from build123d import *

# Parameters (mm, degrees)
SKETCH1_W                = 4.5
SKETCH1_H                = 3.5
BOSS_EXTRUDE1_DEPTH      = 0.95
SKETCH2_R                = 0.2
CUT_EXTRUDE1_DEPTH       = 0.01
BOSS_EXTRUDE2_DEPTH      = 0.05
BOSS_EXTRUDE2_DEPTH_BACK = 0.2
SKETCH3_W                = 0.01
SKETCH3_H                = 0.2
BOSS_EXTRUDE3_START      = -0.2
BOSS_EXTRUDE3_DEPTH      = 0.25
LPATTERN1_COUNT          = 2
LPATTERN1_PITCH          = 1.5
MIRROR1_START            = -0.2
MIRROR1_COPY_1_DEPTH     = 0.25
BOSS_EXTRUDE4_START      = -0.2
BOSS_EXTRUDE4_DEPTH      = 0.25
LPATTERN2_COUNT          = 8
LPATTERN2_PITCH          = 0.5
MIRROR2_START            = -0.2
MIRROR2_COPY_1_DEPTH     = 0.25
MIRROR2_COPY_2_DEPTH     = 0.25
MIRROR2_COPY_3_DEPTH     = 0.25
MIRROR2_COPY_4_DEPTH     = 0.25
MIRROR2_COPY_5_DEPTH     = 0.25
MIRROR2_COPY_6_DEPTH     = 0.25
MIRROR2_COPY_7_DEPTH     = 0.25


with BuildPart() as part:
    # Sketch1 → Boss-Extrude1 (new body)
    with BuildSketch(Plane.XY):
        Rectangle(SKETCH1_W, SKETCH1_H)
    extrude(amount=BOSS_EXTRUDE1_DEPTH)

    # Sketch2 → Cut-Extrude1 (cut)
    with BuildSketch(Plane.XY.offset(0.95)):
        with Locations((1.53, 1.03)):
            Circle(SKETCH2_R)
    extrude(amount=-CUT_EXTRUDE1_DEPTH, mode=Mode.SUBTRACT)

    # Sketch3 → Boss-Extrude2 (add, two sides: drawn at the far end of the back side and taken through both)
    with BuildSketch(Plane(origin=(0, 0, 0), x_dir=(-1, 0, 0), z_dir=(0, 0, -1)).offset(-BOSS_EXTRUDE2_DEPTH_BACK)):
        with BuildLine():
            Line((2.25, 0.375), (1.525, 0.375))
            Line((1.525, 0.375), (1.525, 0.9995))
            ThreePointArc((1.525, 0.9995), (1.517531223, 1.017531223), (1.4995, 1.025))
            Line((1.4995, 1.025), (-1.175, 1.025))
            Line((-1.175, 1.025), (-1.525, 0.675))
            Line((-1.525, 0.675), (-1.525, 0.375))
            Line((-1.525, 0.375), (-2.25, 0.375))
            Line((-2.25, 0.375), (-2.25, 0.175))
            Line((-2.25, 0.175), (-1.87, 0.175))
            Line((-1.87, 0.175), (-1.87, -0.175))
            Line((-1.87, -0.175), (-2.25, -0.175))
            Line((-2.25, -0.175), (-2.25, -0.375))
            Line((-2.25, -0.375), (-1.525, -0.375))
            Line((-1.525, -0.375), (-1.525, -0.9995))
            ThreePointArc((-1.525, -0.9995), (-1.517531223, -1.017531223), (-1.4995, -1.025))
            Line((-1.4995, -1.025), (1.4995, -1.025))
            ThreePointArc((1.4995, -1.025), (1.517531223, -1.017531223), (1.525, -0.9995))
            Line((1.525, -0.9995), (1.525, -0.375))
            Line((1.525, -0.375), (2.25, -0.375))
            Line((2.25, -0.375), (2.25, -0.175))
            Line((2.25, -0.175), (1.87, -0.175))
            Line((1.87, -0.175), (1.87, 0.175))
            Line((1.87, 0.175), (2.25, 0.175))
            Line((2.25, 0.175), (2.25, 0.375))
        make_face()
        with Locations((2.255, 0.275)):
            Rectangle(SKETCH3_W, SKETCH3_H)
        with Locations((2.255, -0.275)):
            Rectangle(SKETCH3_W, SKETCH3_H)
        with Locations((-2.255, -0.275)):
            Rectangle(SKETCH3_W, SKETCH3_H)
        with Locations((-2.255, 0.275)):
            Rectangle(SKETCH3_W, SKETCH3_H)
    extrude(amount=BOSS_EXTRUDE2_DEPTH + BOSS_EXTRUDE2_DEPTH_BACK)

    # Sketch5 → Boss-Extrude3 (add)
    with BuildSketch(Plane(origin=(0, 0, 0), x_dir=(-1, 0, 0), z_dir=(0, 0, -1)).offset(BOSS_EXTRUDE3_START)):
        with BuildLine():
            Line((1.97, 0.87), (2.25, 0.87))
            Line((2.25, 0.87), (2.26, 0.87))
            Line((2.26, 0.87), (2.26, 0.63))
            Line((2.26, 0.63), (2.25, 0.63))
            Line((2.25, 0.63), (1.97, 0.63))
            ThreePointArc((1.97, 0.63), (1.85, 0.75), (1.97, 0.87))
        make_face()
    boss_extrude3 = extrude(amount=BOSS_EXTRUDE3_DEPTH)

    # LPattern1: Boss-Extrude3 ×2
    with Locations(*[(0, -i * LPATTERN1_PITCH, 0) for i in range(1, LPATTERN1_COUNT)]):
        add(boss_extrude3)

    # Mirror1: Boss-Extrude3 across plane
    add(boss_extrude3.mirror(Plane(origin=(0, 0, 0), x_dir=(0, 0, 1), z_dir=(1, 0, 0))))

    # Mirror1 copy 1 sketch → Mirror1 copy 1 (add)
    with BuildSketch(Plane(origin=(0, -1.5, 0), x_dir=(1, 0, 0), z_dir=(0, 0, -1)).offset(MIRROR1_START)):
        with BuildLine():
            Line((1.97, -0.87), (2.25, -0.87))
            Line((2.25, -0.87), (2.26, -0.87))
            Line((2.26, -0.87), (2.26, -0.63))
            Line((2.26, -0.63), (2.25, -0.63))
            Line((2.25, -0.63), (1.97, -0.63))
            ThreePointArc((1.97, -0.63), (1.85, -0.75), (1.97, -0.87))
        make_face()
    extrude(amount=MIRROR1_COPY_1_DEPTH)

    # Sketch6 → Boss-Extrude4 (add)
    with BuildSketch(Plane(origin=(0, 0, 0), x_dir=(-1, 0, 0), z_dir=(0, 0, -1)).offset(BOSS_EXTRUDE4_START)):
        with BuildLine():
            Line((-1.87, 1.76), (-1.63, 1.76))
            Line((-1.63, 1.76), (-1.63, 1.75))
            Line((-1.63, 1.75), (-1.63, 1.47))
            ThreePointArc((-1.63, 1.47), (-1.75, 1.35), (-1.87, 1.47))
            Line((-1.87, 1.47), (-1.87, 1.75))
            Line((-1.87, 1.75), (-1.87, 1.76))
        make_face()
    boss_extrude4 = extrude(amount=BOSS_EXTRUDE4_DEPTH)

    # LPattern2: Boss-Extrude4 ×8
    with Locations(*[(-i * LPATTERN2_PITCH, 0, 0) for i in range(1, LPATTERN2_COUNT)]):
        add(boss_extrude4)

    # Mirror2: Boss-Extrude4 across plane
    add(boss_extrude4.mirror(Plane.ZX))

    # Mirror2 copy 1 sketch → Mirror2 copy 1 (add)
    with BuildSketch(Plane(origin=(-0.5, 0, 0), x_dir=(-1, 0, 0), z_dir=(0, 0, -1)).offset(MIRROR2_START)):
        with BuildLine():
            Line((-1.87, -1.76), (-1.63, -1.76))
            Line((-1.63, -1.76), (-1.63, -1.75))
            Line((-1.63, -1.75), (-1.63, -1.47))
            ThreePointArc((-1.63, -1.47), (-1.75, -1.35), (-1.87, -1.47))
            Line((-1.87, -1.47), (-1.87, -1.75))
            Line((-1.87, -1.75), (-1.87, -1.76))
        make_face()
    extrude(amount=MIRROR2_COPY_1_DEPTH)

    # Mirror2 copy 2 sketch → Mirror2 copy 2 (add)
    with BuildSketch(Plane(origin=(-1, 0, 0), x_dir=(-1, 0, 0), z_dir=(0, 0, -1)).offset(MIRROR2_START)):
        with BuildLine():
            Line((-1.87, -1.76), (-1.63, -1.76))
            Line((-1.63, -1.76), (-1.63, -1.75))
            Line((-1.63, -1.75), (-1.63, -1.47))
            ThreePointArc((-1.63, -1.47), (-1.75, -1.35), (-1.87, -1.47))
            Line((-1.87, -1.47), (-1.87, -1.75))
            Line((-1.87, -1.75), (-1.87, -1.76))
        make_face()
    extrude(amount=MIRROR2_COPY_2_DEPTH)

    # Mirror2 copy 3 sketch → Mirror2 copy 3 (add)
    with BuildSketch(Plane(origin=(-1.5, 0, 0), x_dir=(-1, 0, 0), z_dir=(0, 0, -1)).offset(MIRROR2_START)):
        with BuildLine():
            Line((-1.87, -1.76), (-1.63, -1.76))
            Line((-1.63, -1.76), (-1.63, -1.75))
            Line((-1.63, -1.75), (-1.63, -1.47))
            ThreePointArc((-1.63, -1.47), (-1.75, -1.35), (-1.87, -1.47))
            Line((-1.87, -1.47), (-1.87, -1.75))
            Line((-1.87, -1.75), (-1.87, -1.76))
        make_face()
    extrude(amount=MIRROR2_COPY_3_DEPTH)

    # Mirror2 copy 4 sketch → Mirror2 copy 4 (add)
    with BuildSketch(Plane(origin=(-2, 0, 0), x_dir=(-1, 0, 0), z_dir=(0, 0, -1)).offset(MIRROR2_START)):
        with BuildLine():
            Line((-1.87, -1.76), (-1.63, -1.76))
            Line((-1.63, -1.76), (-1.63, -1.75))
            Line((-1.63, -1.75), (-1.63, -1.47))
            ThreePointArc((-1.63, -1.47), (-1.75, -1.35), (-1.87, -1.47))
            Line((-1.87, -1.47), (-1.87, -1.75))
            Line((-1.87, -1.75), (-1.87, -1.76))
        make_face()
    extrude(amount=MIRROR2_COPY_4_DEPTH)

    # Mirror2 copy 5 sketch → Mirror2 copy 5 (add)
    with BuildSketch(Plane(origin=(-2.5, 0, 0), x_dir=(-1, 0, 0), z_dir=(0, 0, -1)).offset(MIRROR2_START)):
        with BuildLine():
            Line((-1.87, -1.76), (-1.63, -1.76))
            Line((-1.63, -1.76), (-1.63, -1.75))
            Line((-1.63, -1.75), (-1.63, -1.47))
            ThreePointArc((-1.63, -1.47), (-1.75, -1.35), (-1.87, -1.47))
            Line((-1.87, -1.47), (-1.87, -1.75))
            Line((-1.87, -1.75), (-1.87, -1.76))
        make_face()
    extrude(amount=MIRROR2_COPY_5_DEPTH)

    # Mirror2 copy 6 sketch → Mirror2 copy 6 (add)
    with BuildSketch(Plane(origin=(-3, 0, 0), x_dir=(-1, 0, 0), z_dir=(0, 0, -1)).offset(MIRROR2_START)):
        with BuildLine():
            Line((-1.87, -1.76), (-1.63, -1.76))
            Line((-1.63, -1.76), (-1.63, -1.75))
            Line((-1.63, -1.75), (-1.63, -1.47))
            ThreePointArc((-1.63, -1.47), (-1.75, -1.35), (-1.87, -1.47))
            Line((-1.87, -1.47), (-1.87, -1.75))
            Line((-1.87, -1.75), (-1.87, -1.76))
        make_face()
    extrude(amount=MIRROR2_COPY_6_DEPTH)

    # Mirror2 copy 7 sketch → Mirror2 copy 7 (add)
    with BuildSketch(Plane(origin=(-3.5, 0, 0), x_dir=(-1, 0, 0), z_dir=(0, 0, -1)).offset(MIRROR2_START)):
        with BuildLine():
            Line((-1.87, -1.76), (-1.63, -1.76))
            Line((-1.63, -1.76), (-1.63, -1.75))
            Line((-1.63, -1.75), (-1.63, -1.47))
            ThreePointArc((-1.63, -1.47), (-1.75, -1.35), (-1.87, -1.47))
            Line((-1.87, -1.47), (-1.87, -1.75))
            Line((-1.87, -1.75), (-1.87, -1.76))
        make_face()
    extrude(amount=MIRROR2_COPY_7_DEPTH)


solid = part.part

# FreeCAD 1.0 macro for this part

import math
import FreeCAD as App
import Part
import Sketcher

V = App.Vector
Q = App.Units.Quantity

doc = App.newDocument("Part")
body = doc.addObject("PartDesign::Body", "Body")

sketch1 = body.newObject("Sketcher::SketchObject", "Sketch")
sketch1.AttachmentSupport = (doc.getObject("XY_Plane"), [""])
sketch1.MapMode = "FlatFace"
sketch1.addGeometry(Part.LineSegment(V(-2.25, 1.75, 0), V(-2.25, -1.75, 0)), False)
sketch1.addGeometry(Part.LineSegment(V(-2.25, -1.75, 0), V(2.25, -1.75, 0)), False)
sketch1.addGeometry(Part.LineSegment(V(2.25, -1.75, 0), V(2.25, 1.75, 0)), False)
sketch1.addGeometry(Part.LineSegment(V(2.25, 1.75, 0), V(-2.25, 1.75, 0)), False)
sketch1.addConstraint(Sketcher.Constraint("Coincident", 0, 2, 1, 1))
sketch1.addConstraint(Sketcher.Constraint("Coincident", 1, 2, 2, 1))
sketch1.addConstraint(Sketcher.Constraint("Coincident", 2, 2, 3, 1))
sketch1.addConstraint(Sketcher.Constraint("Coincident", 3, 2, 0, 1))
sketch1.addConstraint(Sketcher.Constraint("Vertical", 0))
sketch1.addConstraint(Sketcher.Constraint("Horizontal", 1))
sketch1.addConstraint(Sketcher.Constraint("Vertical", 2))
sketch1.addConstraint(Sketcher.Constraint("Horizontal", 3))
sketch1.addConstraint(Sketcher.Constraint("Symmetric", 0, 2, 2, 2, -1, 1))
sketch1.addConstraint(Sketcher.Constraint("DistanceX", 1, 1, 1, 2, Q("4.5 mm")))
sketch1.addConstraint(Sketcher.Constraint("DistanceY", 0, 2, 0, 1, Q("3.5 mm")))
pad1 = body.newObject("PartDesign::Pad", "Pad")
pad1.Profile = sketch1
pad1.Length = 0.95

sketch2 = body.newObject("Sketcher::SketchObject", "Sketch001")
sketch2.AttachmentSupport = (doc.getObject("XY_Plane"), [""])
sketch2.MapMode = "FlatFace"
sketch2.AttachmentOffset = App.Placement(V(0, 0, 0.95), App.Rotation())
sketch2.addGeometry(Part.Circle(V(1.53, 1.03, 0), V(0, 0, 1), 0.2), False)
sketch2.addConstraint(Sketcher.Constraint("Diameter", 0, Q("0.4 mm")))
sketch2.addConstraint(Sketcher.Constraint("DistanceX", -1, 1, 0, 3, Q("1.53 mm")))
sketch2.addConstraint(Sketcher.Constraint("DistanceY", -1, 1, 0, 3, Q("1.03 mm")))
pocket1 = body.newObject("PartDesign::Pocket", "Pocket")
pocket1.Profile = sketch2
pocket1.Length = 0.01

sketch3 = body.newObject("Sketcher::SketchObject", "Sketch002")
sketch3.AttachmentSupport = (doc.getObject("XY_Plane"), [""])
sketch3.MapMode = "FlatFace"
sketch3.addGeometry(Part.LineSegment(V(-1.525, 0.375, 0), V(-1.525, 0.9995, 0)), False)
sketch3.addGeometry(Part.ArcOfCircle(Part.Circle(V(-1.4995, 0.9995, 0), V(0, 0, 1), 0.0255), math.radians(90), math.radians(180)), False)
sketch3.addGeometry(Part.LineSegment(V(-1.4995, 1.025, 0), V(1.175, 1.025, 0)), False)
sketch3.addGeometry(Part.LineSegment(V(1.175, 1.025, 0), V(1.525, 0.675, 0)), False)
sketch3.addGeometry(Part.LineSegment(V(1.525, 0.675, 0), V(1.525, 0.375, 0)), False)
sketch3.addGeometry(Part.LineSegment(V(1.525, 0.375, 0), V(2.26, 0.375, 0)), False)
sketch3.addGeometry(Part.LineSegment(V(2.26, 0.375, 0), V(2.26, 0.175, 0)), False)
sketch3.addGeometry(Part.LineSegment(V(2.26, 0.175, 0), V(1.87, 0.175, 0)), False)
sketch3.addGeometry(Part.LineSegment(V(1.87, 0.175, 0), V(1.87, -0.175, 0)), False)
sketch3.addGeometry(Part.LineSegment(V(1.87, -0.175, 0), V(2.26, -0.175, 0)), False)
sketch3.addGeometry(Part.LineSegment(V(2.26, -0.175, 0), V(2.26, -0.375, 0)), False)
sketch3.addGeometry(Part.LineSegment(V(2.26, -0.375, 0), V(1.525, -0.375, 0)), False)
sketch3.addGeometry(Part.LineSegment(V(1.525, -0.375, 0), V(1.525, -0.9995, 0)), False)
sketch3.addGeometry(Part.ArcOfCircle(Part.Circle(V(1.4995, -0.9995, 0), V(0, 0, 1), 0.0255), math.radians(-90), math.radians(0)), False)
sketch3.addGeometry(Part.LineSegment(V(1.4995, -1.025, 0), V(-1.4995, -1.025, 0)), False)
sketch3.addGeometry(Part.ArcOfCircle(Part.Circle(V(-1.4995, -0.9995, 0), V(0, 0, 1), 0.0255), math.radians(180), math.radians(270)), False)
sketch3.addGeometry(Part.LineSegment(V(-1.525, -0.9995, 0), V(-1.525, -0.375, 0)), False)
sketch3.addGeometry(Part.LineSegment(V(-1.525, -0.375, 0), V(-2.26, -0.375, 0)), False)
sketch3.addGeometry(Part.LineSegment(V(-2.26, -0.375, 0), V(-2.26, -0.175, 0)), False)
sketch3.addGeometry(Part.LineSegment(V(-2.26, -0.175, 0), V(-1.87, -0.175, 0)), False)
sketch3.addGeometry(Part.LineSegment(V(-1.87, -0.175, 0), V(-1.87, 0.175, 0)), False)
sketch3.addGeometry(Part.LineSegment(V(-1.87, 0.175, 0), V(-2.26, 0.175, 0)), False)
sketch3.addGeometry(Part.LineSegment(V(-2.26, 0.175, 0), V(-2.26, 0.375, 0)), False)
sketch3.addGeometry(Part.LineSegment(V(-2.26, 0.375, 0), V(-1.525, 0.375, 0)), False)
sketch3.addConstraint(Sketcher.Constraint("Tangent", 0, 2, 1, 2))
sketch3.addConstraint(Sketcher.Constraint("Tangent", 1, 1, 2, 1))
sketch3.addConstraint(Sketcher.Constraint("Coincident", 2, 2, 3, 1))
sketch3.addConstraint(Sketcher.Constraint("Coincident", 3, 2, 4, 1))
sketch3.addConstraint(Sketcher.Constraint("Coincident", 4, 2, 5, 1))
sketch3.addConstraint(Sketcher.Constraint("Coincident", 5, 2, 6, 1))
sketch3.addConstraint(Sketcher.Constraint("Coincident", 6, 2, 7, 1))
sketch3.addConstraint(Sketcher.Constraint("Coincident", 7, 2, 8, 1))
sketch3.addConstraint(Sketcher.Constraint("Coincident", 8, 2, 9, 1))
sketch3.addConstraint(Sketcher.Constraint("Coincident", 9, 2, 10, 1))
sketch3.addConstraint(Sketcher.Constraint("Coincident", 10, 2, 11, 1))
sketch3.addConstraint(Sketcher.Constraint("Coincident", 11, 2, 12, 1))
sketch3.addConstraint(Sketcher.Constraint("Tangent", 12, 2, 13, 2))
sketch3.addConstraint(Sketcher.Constraint("Tangent", 13, 1, 14, 1))
sketch3.addConstraint(Sketcher.Constraint("Tangent", 14, 2, 15, 2))
sketch3.addConstraint(Sketcher.Constraint("Tangent", 15, 1, 16, 1))
sketch3.addConstraint(Sketcher.Constraint("Coincident", 16, 2, 17, 1))
sketch3.addConstraint(Sketcher.Constraint("Coincident", 17, 2, 18, 1))
sketch3.addConstraint(Sketcher.Constraint("Coincident", 18, 2, 19, 1))
sketch3.addConstraint(Sketcher.Constraint("Coincident", 19, 2, 20, 1))
sketch3.addConstraint(Sketcher.Constraint("Coincident", 20, 2, 21, 1))
sketch3.addConstraint(Sketcher.Constraint("Coincident", 21, 2, 22, 1))
sketch3.addConstraint(Sketcher.Constraint("Coincident", 22, 2, 23, 1))
sketch3.addConstraint(Sketcher.Constraint("Coincident", 23, 2, 0, 1))
sketch3.addConstraint(Sketcher.Constraint("Vertical", 0))
sketch3.addConstraint(Sketcher.Constraint("Horizontal", 2))
sketch3.addConstraint(Sketcher.Constraint("Vertical", 4))
sketch3.addConstraint(Sketcher.Constraint("Horizontal", 5))
sketch3.addConstraint(Sketcher.Constraint("Vertical", 6))
sketch3.addConstraint(Sketcher.Constraint("Horizontal", 7))
sketch3.addConstraint(Sketcher.Constraint("Vertical", 8))
sketch3.addConstraint(Sketcher.Constraint("Horizontal", 9))
sketch3.addConstraint(Sketcher.Constraint("Vertical", 10))
sketch3.addConstraint(Sketcher.Constraint("Horizontal", 11))
sketch3.addConstraint(Sketcher.Constraint("Vertical", 12))
sketch3.addConstraint(Sketcher.Constraint("Horizontal", 14))
sketch3.addConstraint(Sketcher.Constraint("Vertical", 16))
sketch3.addConstraint(Sketcher.Constraint("Horizontal", 17))
sketch3.addConstraint(Sketcher.Constraint("Vertical", 18))
sketch3.addConstraint(Sketcher.Constraint("Horizontal", 19))
sketch3.addConstraint(Sketcher.Constraint("Vertical", 20))
sketch3.addConstraint(Sketcher.Constraint("Horizontal", 21))
sketch3.addConstraint(Sketcher.Constraint("Vertical", 22))
sketch3.addConstraint(Sketcher.Constraint("Horizontal", 23))
sketch3.addConstraint(Sketcher.Constraint("Equal", 1, 13))
sketch3.addConstraint(Sketcher.Constraint("Equal", 13, 15))
sketch3.addConstraint(Sketcher.Constraint("Symmetric", 1, 3, 13, 3, -1, 1))
sketch3.addConstraint(Sketcher.Constraint("Symmetric", 4, 2, 16, 2, -1, 1))
sketch3.addConstraint(Sketcher.Constraint("Symmetric", 6, 2, 18, 2, -1, 1))
sketch3.addConstraint(Sketcher.Constraint("Symmetric", 8, 2, 20, 2, -1, 1))
sketch3.addConstraint(Sketcher.Constraint("Symmetric", 10, 2, 22, 2, -1, 1))
sketch3.addConstraint(Sketcher.Constraint("Symmetric", 11, 2, 16, 2, -2))
sketch3.addConstraint(Sketcher.Constraint("Symmetric", 9, 2, 18, 2, -2))
sketch3.addConstraint(Sketcher.Constraint("Angle", 3, Q("-45 deg")))
sketch3.addConstraint(Sketcher.Constraint("DistanceY", 4, 2, 4, 1, Q("0.3 mm")))
sketch3.addConstraint(Sketcher.Constraint("DistanceY", 6, 2, 6, 1, Q("0.2 mm")))
sketch3.addConstraint(Sketcher.Constraint("DistanceX", 7, 2, 7, 1, Q("0.39 mm")))
sketch3.addConstraint(Sketcher.Constraint("DistanceY", 8, 2, 8, 1, Q("0.35 mm")))
sketch3.addConstraint(Sketcher.Constraint("Radius", 1, Q("0.0255 mm")))
sketch3.addConstraint(Sketcher.Constraint("DistanceX", 0, 2, 2, 2, Q("2.7 mm")))
sketch3.addConstraint(Sketcher.Constraint("DistanceX", 5, 1, 5, 2, Q("0.735 mm")))
sketch3.addConstraint(Sketcher.Constraint("DistanceX", 14, 2, 14, 1, Q("2.999 mm")))
pad2 = body.newObject("PartDesign::Pad", "Pad001")
pad2.Profile = sketch3
pad2.Type = "TwoLengths"
pad2.Length = 0.05
pad2.Length2 = 0.2
pad2.Reversed = True

sketch4 = body.newObject("Sketcher::SketchObject", "Sketch003")
sketch4.AttachmentSupport = (doc.getObject("XY_Plane"), [""])
sketch4.MapMode = "FlatFace"
sketch4.AttachmentOffset = App.Placement(V(0, 0, 0.2), App.Rotation())
sketch4.addGeometry(Part.LineSegment(V(-2.26, 0.87, 0), V(-1.97, 0.87, 0)), False)
sketch4.addGeometry(Part.ArcOfCircle(Part.Circle(V(-1.97, 0.75, 0), V(0, 0, 1), 0.12), math.radians(-90), math.radians(90)), False)
sketch4.addGeometry(Part.LineSegment(V(-1.97, 0.63, 0), V(-2.26, 0.63, 0)), False)
sketch4.addGeometry(Part.LineSegment(V(-2.26, 0.63, 0), V(-2.26, 0.87, 0)), False)
sketch4.addConstraint(Sketcher.Constraint("Tangent", 0, 2, 1, 2))
sketch4.addConstraint(Sketcher.Constraint("Tangent", 1, 1, 2, 1))
sketch4.addConstraint(Sketcher.Constraint("Coincident", 2, 2, 3, 1))
sketch4.addConstraint(Sketcher.Constraint("Coincident", 3, 2, 0, 1))
sketch4.addConstraint(Sketcher.Constraint("Horizontal", 0))
sketch4.addConstraint(Sketcher.Constraint("Horizontal", 2))
sketch4.addConstraint(Sketcher.Constraint("Vertical", 3))
sketch4.addConstraint(Sketcher.Constraint("Radius", 1, Q("0.12 mm")))
sketch4.addConstraint(Sketcher.Constraint("DistanceX", 0, 1, 0, 2, Q("0.29 mm")))
sketch4.addConstraint(Sketcher.Constraint("DistanceX", 1, 3, -1, 1, Q("1.97 mm")))
sketch4.addConstraint(Sketcher.Constraint("DistanceY", -1, 1, 1, 3, Q("0.75 mm")))
pad3 = body.newObject("PartDesign::Pad", "Pad002")
pad3.Profile = sketch4
pad3.Length = 0.25
pad3.Reversed = True
doc.recompute()

linearpattern = body.newObject("PartDesign::LinearPattern", "LinearPattern")
linearpattern.Originals = [pad3]
linearpattern.Direction = (doc.getObject("Y_Axis"), [""])
linearpattern.Mode = "offset"
linearpattern.Offset = 1.5
linearpattern.Occurrences = 2
linearpattern.Reversed = True
body.Tip = linearpattern
doc.recompute()

mirrored = body.newObject("PartDesign::Mirrored", "Mirrored")
mirrored.Originals = [pad3]
mirrored.MirrorPlane = (doc.getObject("YZ_Plane"), [""])
body.Tip = mirrored

sketch5 = body.newObject("Sketcher::SketchObject", "Sketch004")
sketch5.AttachmentSupport = (doc.getObject("XY_Plane"), [""])
sketch5.MapMode = "FlatFace"
sketch5.AttachmentOffset = App.Placement(V(0, 0, 0.2), App.Rotation())
sketch5.addGeometry(Part.LineSegment(V(1.97, -0.63, 0), V(2.26, -0.63, 0)), False)
sketch5.addGeometry(Part.LineSegment(V(2.26, -0.63, 0), V(2.26, -0.87, 0)), False)
sketch5.addGeometry(Part.LineSegment(V(2.26, -0.87, 0), V(1.97, -0.87, 0)), False)
sketch5.addGeometry(Part.ArcOfCircle(Part.Circle(V(1.97, -0.75, 0), V(0, 0, 1), 0.12), math.radians(90), math.radians(270)), False)
sketch5.addConstraint(Sketcher.Constraint("Coincident", 0, 2, 1, 1))
sketch5.addConstraint(Sketcher.Constraint("Coincident", 1, 2, 2, 1))
sketch5.addConstraint(Sketcher.Constraint("Tangent", 2, 2, 3, 2))
sketch5.addConstraint(Sketcher.Constraint("Tangent", 3, 1, 0, 1))
sketch5.addConstraint(Sketcher.Constraint("Horizontal", 0))
sketch5.addConstraint(Sketcher.Constraint("Vertical", 1))
sketch5.addConstraint(Sketcher.Constraint("Horizontal", 2))
sketch5.addConstraint(Sketcher.Constraint("Radius", 3, Q("0.12 mm")))
sketch5.addConstraint(Sketcher.Constraint("DistanceX", 0, 1, 0, 2, Q("0.29 mm")))
sketch5.addConstraint(Sketcher.Constraint("DistanceX", -1, 1, 3, 3, Q("1.97 mm")))
sketch5.addConstraint(Sketcher.Constraint("DistanceY", 3, 3, -1, 1, Q("0.75 mm")))
pad4 = body.newObject("PartDesign::Pad", "Pad003")
pad4.Profile = sketch5
pad4.Length = 0.25
pad4.Reversed = True

sketch6 = body.newObject("Sketcher::SketchObject", "Sketch005")
sketch6.AttachmentSupport = (doc.getObject("XY_Plane"), [""])
sketch6.MapMode = "FlatFace"
sketch6.AttachmentOffset = App.Placement(V(0, 0, 0.2), App.Rotation())
sketch6.addGeometry(Part.LineSegment(V(1.63, 1.76, 0), V(1.87, 1.76, 0)), False)
sketch6.addGeometry(Part.LineSegment(V(1.87, 1.76, 0), V(1.87, 1.47, 0)), False)
sketch6.addGeometry(Part.ArcOfCircle(Part.Circle(V(1.75, 1.47, 0), V(0, 0, 1), 0.12), math.radians(180), math.radians(360)), False)
sketch6.addGeometry(Part.LineSegment(V(1.63, 1.47, 0), V(1.63, 1.76, 0)), False)
sketch6.addConstraint(Sketcher.Constraint("Coincident", 0, 2, 1, 1))
sketch6.addConstraint(Sketcher.Constraint("Tangent", 1, 2, 2, 2))
sketch6.addConstraint(Sketcher.Constraint("Tangent", 2, 1, 3, 1))
sketch6.addConstraint(Sketcher.Constraint("Coincident", 3, 2, 0, 1))
sketch6.addConstraint(Sketcher.Constraint("Horizontal", 0))
sketch6.addConstraint(Sketcher.Constraint("Vertical", 1))
sketch6.addConstraint(Sketcher.Constraint("Vertical", 3))
sketch6.addConstraint(Sketcher.Constraint("Radius", 2, Q("0.12 mm")))
sketch6.addConstraint(Sketcher.Constraint("DistanceY", 1, 2, 1, 1, Q("0.29 mm")))
sketch6.addConstraint(Sketcher.Constraint("DistanceX", -1, 1, 2, 3, Q("1.75 mm")))
sketch6.addConstraint(Sketcher.Constraint("DistanceY", -1, 1, 2, 3, Q("1.47 mm")))
pad5 = body.newObject("PartDesign::Pad", "Pad004")
pad5.Profile = sketch6
pad5.Length = 0.25
pad5.Reversed = True
doc.recompute()

linearpattern2 = body.newObject("PartDesign::LinearPattern", "LinearPattern001")
linearpattern2.Originals = [pad5]
linearpattern2.Direction = (doc.getObject("X_Axis"), [""])
linearpattern2.Mode = "offset"
linearpattern2.Offset = 0.5
linearpattern2.Occurrences = 8
linearpattern2.Reversed = True
body.Tip = linearpattern2
doc.recompute()

mirrored2 = body.newObject("PartDesign::Mirrored", "Mirrored001")
mirrored2.Originals = [pad5]
mirrored2.MirrorPlane = (doc.getObject("XZ_Plane"), [""])
body.Tip = mirrored2

sketch7 = body.newObject("Sketcher::SketchObject", "Sketch006")
sketch7.AttachmentSupport = (doc.getObject("XY_Plane"), [""])
sketch7.MapMode = "FlatFace"
sketch7.AttachmentOffset = App.Placement(V(0, 0, 0.2), App.Rotation())
sketch7.addGeometry(Part.LineSegment(V(1.37, -1.76, 0), V(1.13, -1.76, 0)), False)
sketch7.addGeometry(Part.LineSegment(V(1.13, -1.76, 0), V(1.13, -1.47, 0)), False)
sketch7.addGeometry(Part.ArcOfCircle(Part.Circle(V(1.25, -1.47, 0), V(0, 0, 1), 0.12), math.radians(0), math.radians(180)), False)
sketch7.addGeometry(Part.LineSegment(V(1.37, -1.47, 0), V(1.37, -1.76, 0)), False)
sketch7.addConstraint(Sketcher.Constraint("Coincident", 0, 2, 1, 1))
sketch7.addConstraint(Sketcher.Constraint("Tangent", 1, 2, 2, 2))
sketch7.addConstraint(Sketcher.Constraint("Tangent", 2, 1, 3, 1))
sketch7.addConstraint(Sketcher.Constraint("Coincident", 3, 2, 0, 1))
sketch7.addConstraint(Sketcher.Constraint("Horizontal", 0))
sketch7.addConstraint(Sketcher.Constraint("Vertical", 1))
sketch7.addConstraint(Sketcher.Constraint("Vertical", 3))
sketch7.addConstraint(Sketcher.Constraint("Radius", 2, Q("0.12 mm")))
sketch7.addConstraint(Sketcher.Constraint("DistanceY", 1, 1, 1, 2, Q("0.29 mm")))
sketch7.addConstraint(Sketcher.Constraint("DistanceX", -1, 1, 2, 3, Q("1.25 mm")))
sketch7.addConstraint(Sketcher.Constraint("DistanceY", 2, 3, -1, 1, Q("1.47 mm")))
pad6 = body.newObject("PartDesign::Pad", "Pad005")
pad6.Profile = sketch7
pad6.Length = 0.25
pad6.Reversed = True

sketch8 = body.newObject("Sketcher::SketchObject", "Sketch007")
sketch8.AttachmentSupport = (doc.getObject("XY_Plane"), [""])
sketch8.MapMode = "FlatFace"
sketch8.AttachmentOffset = App.Placement(V(0, 0, 0.2), App.Rotation())
sketch8.addGeometry(Part.LineSegment(V(0.87, -1.76, 0), V(0.63, -1.76, 0)), False)
sketch8.addGeometry(Part.LineSegment(V(0.63, -1.76, 0), V(0.63, -1.47, 0)), False)
sketch8.addGeometry(Part.ArcOfCircle(Part.Circle(V(0.75, -1.47, 0), V(0, 0, 1), 0.12), math.radians(0), math.radians(180)), False)
sketch8.addGeometry(Part.LineSegment(V(0.87, -1.47, 0), V(0.87, -1.76, 0)), False)
sketch8.addConstraint(Sketcher.Constraint("Coincident", 0, 2, 1, 1))
sketch8.addConstraint(Sketcher.Constraint("Tangent", 1, 2, 2, 2))
sketch8.addConstraint(Sketcher.Constraint("Tangent", 2, 1, 3, 1))
sketch8.addConstraint(Sketcher.Constraint("Coincident", 3, 2, 0, 1))
sketch8.addConstraint(Sketcher.Constraint("Horizontal", 0))
sketch8.addConstraint(Sketcher.Constraint("Vertical", 1))
sketch8.addConstraint(Sketcher.Constraint("Vertical", 3))
sketch8.addConstraint(Sketcher.Constraint("Radius", 2, Q("0.12 mm")))
sketch8.addConstraint(Sketcher.Constraint("DistanceY", 1, 1, 1, 2, Q("0.29 mm")))
sketch8.addConstraint(Sketcher.Constraint("DistanceX", -1, 1, 2, 3, Q("0.75 mm")))
sketch8.addConstraint(Sketcher.Constraint("DistanceY", 2, 3, -1, 1, Q("1.47 mm")))
pad7 = body.newObject("PartDesign::Pad", "Pad006")
pad7.Profile = sketch8
pad7.Length = 0.25
pad7.Reversed = True

sketch9 = body.newObject("Sketcher::SketchObject", "Sketch008")
sketch9.AttachmentSupport = (doc.getObject("XY_Plane"), [""])
sketch9.MapMode = "FlatFace"
sketch9.AttachmentOffset = App.Placement(V(0, 0, 0.2), App.Rotation())
sketch9.addGeometry(Part.LineSegment(V(0.37, -1.76, 0), V(0.13, -1.76, 0)), False)
sketch9.addGeometry(Part.LineSegment(V(0.13, -1.76, 0), V(0.13, -1.47, 0)), False)
sketch9.addGeometry(Part.ArcOfCircle(Part.Circle(V(0.25, -1.47, 0), V(0, 0, 1), 0.12), math.radians(0), math.radians(180)), False)
sketch9.addGeometry(Part.LineSegment(V(0.37, -1.47, 0), V(0.37, -1.76, 0)), False)
sketch9.addConstraint(Sketcher.Constraint("Coincident", 0, 2, 1, 1))
sketch9.addConstraint(Sketcher.Constraint("Tangent", 1, 2, 2, 2))
sketch9.addConstraint(Sketcher.Constraint("Tangent", 2, 1, 3, 1))
sketch9.addConstraint(Sketcher.Constraint("Coincident", 3, 2, 0, 1))
sketch9.addConstraint(Sketcher.Constraint("Horizontal", 0))
sketch9.addConstraint(Sketcher.Constraint("Vertical", 1))
sketch9.addConstraint(Sketcher.Constraint("Vertical", 3))
sketch9.addConstraint(Sketcher.Constraint("Radius", 2, Q("0.12 mm")))
sketch9.addConstraint(Sketcher.Constraint("DistanceY", 1, 1, 1, 2, Q("0.29 mm")))
sketch9.addConstraint(Sketcher.Constraint("DistanceX", -1, 1, 2, 3, Q("0.25 mm")))
sketch9.addConstraint(Sketcher.Constraint("DistanceY", 2, 3, -1, 1, Q("1.47 mm")))
pad8 = body.newObject("PartDesign::Pad", "Pad007")
pad8.Profile = sketch9
pad8.Length = 0.25
pad8.Reversed = True

sketch10 = body.newObject("Sketcher::SketchObject", "Sketch009")
sketch10.AttachmentSupport = (doc.getObject("XY_Plane"), [""])
sketch10.MapMode = "FlatFace"
sketch10.AttachmentOffset = App.Placement(V(0, 0, 0.2), App.Rotation())
sketch10.addGeometry(Part.LineSegment(V(-0.13, -1.76, 0), V(-0.37, -1.76, 0)), False)
sketch10.addGeometry(Part.LineSegment(V(-0.37, -1.76, 0), V(-0.37, -1.47, 0)), False)
sketch10.addGeometry(Part.ArcOfCircle(Part.Circle(V(-0.25, -1.47, 0), V(0, 0, 1), 0.12), math.radians(0), math.radians(180)), False)
sketch10.addGeometry(Part.LineSegment(V(-0.13, -1.47, 0), V(-0.13, -1.76, 0)), False)
sketch10.addConstraint(Sketcher.Constraint("Coincident", 0, 2, 1, 1))
sketch10.addConstraint(Sketcher.Constraint("Tangent", 1, 2, 2, 2))
sketch10.addConstraint(Sketcher.Constraint("Tangent", 2, 1, 3, 1))
sketch10.addConstraint(Sketcher.Constraint("Coincident", 3, 2, 0, 1))
sketch10.addConstraint(Sketcher.Constraint("Horizontal", 0))
sketch10.addConstraint(Sketcher.Constraint("Vertical", 1))
sketch10.addConstraint(Sketcher.Constraint("Vertical", 3))
sketch10.addConstraint(Sketcher.Constraint("Radius", 2, Q("0.12 mm")))
sketch10.addConstraint(Sketcher.Constraint("DistanceY", 1, 1, 1, 2, Q("0.29 mm")))
sketch10.addConstraint(Sketcher.Constraint("DistanceX", 2, 3, -1, 1, Q("0.25 mm")))
sketch10.addConstraint(Sketcher.Constraint("DistanceY", 2, 3, -1, 1, Q("1.47 mm")))
pad9 = body.newObject("PartDesign::Pad", "Pad008")
pad9.Profile = sketch10
pad9.Length = 0.25
pad9.Reversed = True

sketch11 = body.newObject("Sketcher::SketchObject", "Sketch010")
sketch11.AttachmentSupport = (doc.getObject("XY_Plane"), [""])
sketch11.MapMode = "FlatFace"
sketch11.AttachmentOffset = App.Placement(V(0, 0, 0.2), App.Rotation())
sketch11.addGeometry(Part.LineSegment(V(-0.63, -1.76, 0), V(-0.87, -1.76, 0)), False)
sketch11.addGeometry(Part.LineSegment(V(-0.87, -1.76, 0), V(-0.87, -1.47, 0)), False)
sketch11.addGeometry(Part.ArcOfCircle(Part.Circle(V(-0.75, -1.47, 0), V(0, 0, 1), 0.12), math.radians(0), math.radians(180)), False)
sketch11.addGeometry(Part.LineSegment(V(-0.63, -1.47, 0), V(-0.63, -1.76, 0)), False)
sketch11.addConstraint(Sketcher.Constraint("Coincident", 0, 2, 1, 1))
sketch11.addConstraint(Sketcher.Constraint("Tangent", 1, 2, 2, 2))
sketch11.addConstraint(Sketcher.Constraint("Tangent", 2, 1, 3, 1))
sketch11.addConstraint(Sketcher.Constraint("Coincident", 3, 2, 0, 1))
sketch11.addConstraint(Sketcher.Constraint("Horizontal", 0))
sketch11.addConstraint(Sketcher.Constraint("Vertical", 1))
sketch11.addConstraint(Sketcher.Constraint("Vertical", 3))
sketch11.addConstraint(Sketcher.Constraint("Radius", 2, Q("0.12 mm")))
sketch11.addConstraint(Sketcher.Constraint("DistanceY", 1, 1, 1, 2, Q("0.29 mm")))
sketch11.addConstraint(Sketcher.Constraint("DistanceX", 2, 3, -1, 1, Q("0.75 mm")))
sketch11.addConstraint(Sketcher.Constraint("DistanceY", 2, 3, -1, 1, Q("1.47 mm")))
pad10 = body.newObject("PartDesign::Pad", "Pad009")
pad10.Profile = sketch11
pad10.Length = 0.25
pad10.Reversed = True

sketch12 = body.newObject("Sketcher::SketchObject", "Sketch011")
sketch12.AttachmentSupport = (doc.getObject("XY_Plane"), [""])
sketch12.MapMode = "FlatFace"
sketch12.AttachmentOffset = App.Placement(V(0, 0, 0.2), App.Rotation())
sketch12.addGeometry(Part.LineSegment(V(-1.13, -1.76, 0), V(-1.37, -1.76, 0)), False)
sketch12.addGeometry(Part.LineSegment(V(-1.37, -1.76, 0), V(-1.37, -1.47, 0)), False)
sketch12.addGeometry(Part.ArcOfCircle(Part.Circle(V(-1.25, -1.47, 0), V(0, 0, 1), 0.12), math.radians(0), math.radians(180)), False)
sketch12.addGeometry(Part.LineSegment(V(-1.13, -1.47, 0), V(-1.13, -1.76, 0)), False)
sketch12.addConstraint(Sketcher.Constraint("Coincident", 0, 2, 1, 1))
sketch12.addConstraint(Sketcher.Constraint("Tangent", 1, 2, 2, 2))
sketch12.addConstraint(Sketcher.Constraint("Tangent", 2, 1, 3, 1))
sketch12.addConstraint(Sketcher.Constraint("Coincident", 3, 2, 0, 1))
sketch12.addConstraint(Sketcher.Constraint("Horizontal", 0))
sketch12.addConstraint(Sketcher.Constraint("Vertical", 1))
sketch12.addConstraint(Sketcher.Constraint("Vertical", 3))
sketch12.addConstraint(Sketcher.Constraint("Radius", 2, Q("0.12 mm")))
sketch12.addConstraint(Sketcher.Constraint("DistanceY", 1, 1, 1, 2, Q("0.29 mm")))
sketch12.addConstraint(Sketcher.Constraint("DistanceX", 2, 3, -1, 1, Q("1.25 mm")))
sketch12.addConstraint(Sketcher.Constraint("DistanceY", 2, 3, -1, 1, Q("1.47 mm")))
pad11 = body.newObject("PartDesign::Pad", "Pad010")
pad11.Profile = sketch12
pad11.Length = 0.25
pad11.Reversed = True

sketch13 = body.newObject("Sketcher::SketchObject", "Sketch012")
sketch13.AttachmentSupport = (doc.getObject("XY_Plane"), [""])
sketch13.MapMode = "FlatFace"
sketch13.AttachmentOffset = App.Placement(V(0, 0, 0.2), App.Rotation())
sketch13.addGeometry(Part.LineSegment(V(-1.63, -1.76, 0), V(-1.87, -1.76, 0)), False)
sketch13.addGeometry(Part.LineSegment(V(-1.87, -1.76, 0), V(-1.87, -1.47, 0)), False)
sketch13.addGeometry(Part.ArcOfCircle(Part.Circle(V(-1.75, -1.47, 0), V(0, 0, 1), 0.12), math.radians(0), math.radians(180)), False)
sketch13.addGeometry(Part.LineSegment(V(-1.63, -1.47, 0), V(-1.63, -1.76, 0)), False)
sketch13.addConstraint(Sketcher.Constraint("Coincident", 0, 2, 1, 1))
sketch13.addConstraint(Sketcher.Constraint("Tangent", 1, 2, 2, 2))
sketch13.addConstraint(Sketcher.Constraint("Tangent", 2, 1, 3, 1))
sketch13.addConstraint(Sketcher.Constraint("Coincident", 3, 2, 0, 1))
sketch13.addConstraint(Sketcher.Constraint("Horizontal", 0))
sketch13.addConstraint(Sketcher.Constraint("Vertical", 1))
sketch13.addConstraint(Sketcher.Constraint("Vertical", 3))
sketch13.addConstraint(Sketcher.Constraint("Radius", 2, Q("0.12 mm")))
sketch13.addConstraint(Sketcher.Constraint("DistanceY", 1, 1, 1, 2, Q("0.29 mm")))
sketch13.addConstraint(Sketcher.Constraint("DistanceX", 2, 3, -1, 1, Q("1.75 mm")))
sketch13.addConstraint(Sketcher.Constraint("DistanceY", 2, 3, -1, 1, Q("1.47 mm")))
pad12 = body.newObject("PartDesign::Pad", "Pad011")
pad12.Profile = sketch13
pad12.Length = 0.25
pad12.Reversed = True

doc.recompute()
